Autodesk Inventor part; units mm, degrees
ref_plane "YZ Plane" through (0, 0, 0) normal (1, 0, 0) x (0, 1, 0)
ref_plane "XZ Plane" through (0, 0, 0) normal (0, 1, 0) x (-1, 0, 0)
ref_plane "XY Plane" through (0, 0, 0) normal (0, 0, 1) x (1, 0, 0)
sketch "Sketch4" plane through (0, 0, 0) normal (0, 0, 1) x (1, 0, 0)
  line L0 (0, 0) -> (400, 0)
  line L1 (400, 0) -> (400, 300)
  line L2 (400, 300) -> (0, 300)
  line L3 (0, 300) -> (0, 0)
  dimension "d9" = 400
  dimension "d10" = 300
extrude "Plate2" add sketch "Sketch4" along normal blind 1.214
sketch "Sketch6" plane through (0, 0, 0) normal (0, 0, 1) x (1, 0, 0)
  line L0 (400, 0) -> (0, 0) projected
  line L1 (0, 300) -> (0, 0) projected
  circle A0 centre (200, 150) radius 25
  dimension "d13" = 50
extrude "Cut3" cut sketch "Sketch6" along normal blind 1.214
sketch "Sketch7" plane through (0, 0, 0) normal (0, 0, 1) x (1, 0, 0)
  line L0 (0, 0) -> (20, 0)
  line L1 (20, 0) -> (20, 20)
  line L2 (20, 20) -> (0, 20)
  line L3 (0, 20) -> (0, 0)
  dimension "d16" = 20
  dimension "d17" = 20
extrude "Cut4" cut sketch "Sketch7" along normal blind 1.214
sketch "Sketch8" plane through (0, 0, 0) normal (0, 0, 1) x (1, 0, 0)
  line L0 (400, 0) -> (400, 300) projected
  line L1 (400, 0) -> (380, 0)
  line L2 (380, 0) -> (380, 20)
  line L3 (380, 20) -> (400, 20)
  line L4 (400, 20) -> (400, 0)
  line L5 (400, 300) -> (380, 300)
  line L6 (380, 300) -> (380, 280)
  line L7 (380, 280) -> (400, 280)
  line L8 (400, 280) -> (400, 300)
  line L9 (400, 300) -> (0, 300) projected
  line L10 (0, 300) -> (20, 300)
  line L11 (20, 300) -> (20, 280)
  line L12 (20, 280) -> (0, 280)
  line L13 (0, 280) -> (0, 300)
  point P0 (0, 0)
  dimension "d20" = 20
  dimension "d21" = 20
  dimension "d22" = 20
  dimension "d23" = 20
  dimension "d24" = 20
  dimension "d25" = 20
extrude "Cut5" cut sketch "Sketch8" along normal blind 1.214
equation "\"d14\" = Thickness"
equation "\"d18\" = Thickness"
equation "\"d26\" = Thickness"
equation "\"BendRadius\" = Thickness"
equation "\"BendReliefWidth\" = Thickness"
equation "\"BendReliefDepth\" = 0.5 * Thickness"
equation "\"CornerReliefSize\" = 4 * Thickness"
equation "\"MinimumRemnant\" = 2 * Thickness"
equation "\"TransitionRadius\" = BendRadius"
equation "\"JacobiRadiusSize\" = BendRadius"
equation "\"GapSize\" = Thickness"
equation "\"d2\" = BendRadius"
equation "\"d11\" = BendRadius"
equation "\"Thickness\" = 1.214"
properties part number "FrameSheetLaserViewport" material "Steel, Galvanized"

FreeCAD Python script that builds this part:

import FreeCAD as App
import Part
import Sketcher
from FreeCAD import Vector

doc = App.newDocument("Part")
params = doc.addObject("Spreadsheet::Sheet", "Params")
for row, (alias, value) in enumerate([
    ("sketch1_width", "400 mm"),
    ("sketch1_height", "300 mm"),
    ("pad1_length", "1.214 mm"),
    ("sketch2_diameter", "50 mm"),
    ("pocket1_length", "1.214 mm"),
    ("sketch3_width", "20 mm"),
    ("pocket2_length", "1.214 mm"),
    ("sketch4_width", "20 mm"),
    ("pocket3_length", "1.214 mm"),
], start=1):
    params.set(f"A{row}", alias)
    params.set(f"B{row}", "=" + value)
    params.setAlias(f"B{row}", alias)

body = doc.addObject("PartDesign::Body", "Body")

# Sketch on XY plane
sketch1 = body.newObject("Sketcher::SketchObject", "Sketch")
sketch1.AttachmentSupport = (doc.getObject("XY_Plane"), [""])
sketch1.MapMode = "FlatFace"
sketch1.addGeometry(Part.LineSegment(Vector(0, 300, 0), Vector(0, 0, 0)), False)
sketch1.addGeometry(Part.LineSegment(Vector(0, 0, 0), Vector(400, 0, 0)), False)
sketch1.addGeometry(Part.LineSegment(Vector(400, 0, 0), Vector(400, 300, 0)), False)
sketch1.addGeometry(Part.LineSegment(Vector(400, 300, 0), Vector(0, 300, 0)), False)
sketch1.addConstraint(Sketcher.Constraint("Coincident", 0, 2, 1, 1))
sketch1.addConstraint(Sketcher.Constraint("Coincident", 1, 2, 2, 1))
sketch1.addConstraint(Sketcher.Constraint("Coincident", 2, 2, 3, 1))
sketch1.addConstraint(Sketcher.Constraint("Coincident", 3, 2, 0, 1))
sketch1.addConstraint(Sketcher.Constraint("Vertical", 0))
sketch1.addConstraint(Sketcher.Constraint("Horizontal", 1))
sketch1.addConstraint(Sketcher.Constraint("Vertical", 2))
sketch1.addConstraint(Sketcher.Constraint("Horizontal", 3))
sketch1.addConstraint(Sketcher.Constraint("Coincident", 0, 2, -1, 1))
sketch1.addConstraint(Sketcher.Constraint("DistanceX", 1, 1, 1, 2, 400.0))
sketch1.addConstraint(Sketcher.Constraint("DistanceY", 0, 2, 0, 1, 300.0))
sketch1.setExpression("Constraints[9]", "Params.sketch1_width")
sketch1.setExpression("Constraints[10]", "Params.sketch1_height")
pad1 = body.newObject("PartDesign::Pad", "Pad")
pad1.Profile = sketch1
pad1.setExpression("Length", "Params.pad1_length")

# Sketch on XY plane
sketch2 = body.newObject("Sketcher::SketchObject", "Sketch001")
sketch2.AttachmentSupport = (doc.getObject("XY_Plane"), [""])
sketch2.MapMode = "FlatFace"
sketch2.addGeometry(Part.Circle(Vector(200, 150, 0), Vector(0, 0, 1), 25), False)
sketch2.addConstraint(Sketcher.Constraint("Diameter", 0, 50.0))
sketch2.addConstraint(Sketcher.Constraint("DistanceX", -1, 1, 0, 3, 200.0))
sketch2.addConstraint(Sketcher.Constraint("DistanceY", -1, 1, 0, 3, 150.0))
sketch2.setExpression("Constraints[0]", "Params.sketch2_diameter")
pocket1 = body.newObject("PartDesign::Pocket", "Pocket")
pocket1.Profile = sketch2
pocket1.setExpression("Length", "Params.pocket1_length")
pocket1.Reversed = True

# Sketch on XY plane
sketch3 = body.newObject("Sketcher::SketchObject", "Sketch002")
sketch3.AttachmentSupport = (doc.getObject("XY_Plane"), [""])
sketch3.MapMode = "FlatFace"
sketch3.addGeometry(Part.LineSegment(Vector(0, 20, 0), Vector(0, 0, 0)), False)
sketch3.addGeometry(Part.LineSegment(Vector(0, 0, 0), Vector(20, 0, 0)), False)
sketch3.addGeometry(Part.LineSegment(Vector(20, 0, 0), Vector(20, 20, 0)), False)
sketch3.addGeometry(Part.LineSegment(Vector(20, 20, 0), Vector(0, 20, 0)), False)
sketch3.addConstraint(Sketcher.Constraint("Coincident", 0, 2, 1, 1))
sketch3.addConstraint(Sketcher.Constraint("Coincident", 1, 2, 2, 1))
sketch3.addConstraint(Sketcher.Constraint("Coincident", 2, 2, 3, 1))
sketch3.addConstraint(Sketcher.Constraint("Coincident", 3, 2, 0, 1))
sketch3.addConstraint(Sketcher.Constraint("Vertical", 0))
sketch3.addConstraint(Sketcher.Constraint("Horizontal", 1))
sketch3.addConstraint(Sketcher.Constraint("Vertical", 2))
sketch3.addConstraint(Sketcher.Constraint("Horizontal", 3))
sketch3.addConstraint(Sketcher.Constraint("Coincident", 0, 2, -1, 1))
sketch3.addConstraint(Sketcher.Constraint("Equal", 3, 0))
sketch3.addConstraint(Sketcher.Constraint("DistanceX", 1, 1, 1, 2, 20.0))
sketch3.setExpression("Constraints[10]", "Params.sketch3_width")
pocket2 = body.newObject("PartDesign::Pocket", "Pocket001")
pocket2.Profile = sketch3
pocket2.setExpression("Length", "Params.pocket2_length")
pocket2.Reversed = True

# Sketch on XY plane
sketch4 = body.newObject("Sketcher::SketchObject", "Sketch003")
sketch4.AttachmentSupport = (doc.getObject("XY_Plane"), [""])
sketch4.MapMode = "FlatFace"
sketch4.addGeometry(Part.LineSegment(Vector(380, 0, 0), Vector(400, 0, 0)), False)
sketch4.addGeometry(Part.LineSegment(Vector(400, 0, 0), Vector(400, 20, 0)), False)
sketch4.addGeometry(Part.LineSegment(Vector(400, 20, 0), Vector(380, 20, 0)), False)
sketch4.addGeometry(Part.LineSegment(Vector(380, 20, 0), Vector(380, 0, 0)), False)
sketch4.addGeometry(Part.LineSegment(Vector(20, 280, 0), Vector(20, 300, 0)), False)
sketch4.addGeometry(Part.LineSegment(Vector(20, 300, 0), Vector(0, 300, 0)), False)
sketch4.addGeometry(Part.LineSegment(Vector(0, 300, 0), Vector(0, 280, 0)), False)
sketch4.addGeometry(Part.LineSegment(Vector(0, 280, 0), Vector(20, 280, 0)), False)
sketch4.addGeometry(Part.LineSegment(Vector(380, 280, 0), Vector(400, 280, 0)), False)
sketch4.addGeometry(Part.LineSegment(Vector(400, 280, 0), Vector(400, 300, 0)), False)
sketch4.addGeometry(Part.LineSegment(Vector(400, 300, 0), Vector(380, 300, 0)), False)
sketch4.addGeometry(Part.LineSegment(Vector(380, 300, 0), Vector(380, 280, 0)), False)
sketch4.addConstraint(Sketcher.Constraint("Coincident", 0, 2, 1, 1))
sketch4.addConstraint(Sketcher.Constraint("Coincident", 1, 2, 2, 1))
sketch4.addConstraint(Sketcher.Constraint("Coincident", 2, 2, 3, 1))
sketch4.addConstraint(Sketcher.Constraint("Coincident", 3, 2, 0, 1))
sketch4.addConstraint(Sketcher.Constraint("Coincident", 4, 2, 5, 1))
sketch4.addConstraint(Sketcher.Constraint("Coincident", 5, 2, 6, 1))
sketch4.addConstraint(Sketcher.Constraint("Coincident", 6, 2, 7, 1))
sketch4.addConstraint(Sketcher.Constraint("Coincident", 7, 2, 4, 1))
sketch4.addConstraint(Sketcher.Constraint("Coincident", 8, 2, 9, 1))
sketch4.addConstraint(Sketcher.Constraint("Coincident", 9, 2, 10, 1))
sketch4.addConstraint(Sketcher.Constraint("Coincident", 10, 2, 11, 1))
sketch4.addConstraint(Sketcher.Constraint("Coincident", 11, 2, 8, 1))
sketch4.addConstraint(Sketcher.Constraint("Horizontal", 0))
sketch4.addConstraint(Sketcher.Constraint("Vertical", 1))
sketch4.addConstraint(Sketcher.Constraint("Horizontal", 2))
sketch4.addConstraint(Sketcher.Constraint("Vertical", 3))
sketch4.addConstraint(Sketcher.Constraint("Vertical", 4))
sketch4.addConstraint(Sketcher.Constraint("Horizontal", 5))
sketch4.addConstraint(Sketcher.Constraint("Vertical", 6))
sketch4.addConstraint(Sketcher.Constraint("Horizontal", 7))
sketch4.addConstraint(Sketcher.Constraint("Horizontal", 8))
sketch4.addConstraint(Sketcher.Constraint("Vertical", 9))
sketch4.addConstraint(Sketcher.Constraint("Horizontal", 10))
sketch4.addConstraint(Sketcher.Constraint("Vertical", 11))
sketch4.addConstraint(Sketcher.Constraint("PointOnObject", 0, 2, -1))
sketch4.addConstraint(Sketcher.Constraint("PointOnObject", 5, 2, -2))
sketch4.addConstraint(Sketcher.Constraint("Horizontal", 7, 2, 8, 2))
sketch4.addConstraint(Sketcher.Constraint("Horizontal", 5, 2, 9, 2))
sketch4.addConstraint(Sketcher.Constraint("Vertical", 1, 2, 8, 2))
sketch4.addConstraint(Sketcher.Constraint("Vertical", 3, 2, 10, 2))
sketch4.addConstraint(Sketcher.Constraint("Equal", 2, 5))
sketch4.addConstraint(Sketcher.Constraint("Equal", 10, 1))
sketch4.addConstraint(Sketcher.Constraint("Equal", 3, 4))
sketch4.addConstraint(Sketcher.Constraint("DistanceX", 0, 1, 0, 2, 20.0))
sketch4.addConstraint(Sketcher.Constraint("DistanceX", -1, 1, 0, 2, 400.0))
sketch4.addConstraint(Sketcher.Constraint("DistanceY", -1, 1, 4, 2, 300.0))
sketch4.setExpression("Constraints[33]", "Params.sketch4_width")
pocket3 = body.newObject("PartDesign::Pocket", "Pocket002")
pocket3.Profile = sketch4
pocket3.setExpression("Length", "Params.pocket3_length")
pocket3.Reversed = True

doc.recompute()
